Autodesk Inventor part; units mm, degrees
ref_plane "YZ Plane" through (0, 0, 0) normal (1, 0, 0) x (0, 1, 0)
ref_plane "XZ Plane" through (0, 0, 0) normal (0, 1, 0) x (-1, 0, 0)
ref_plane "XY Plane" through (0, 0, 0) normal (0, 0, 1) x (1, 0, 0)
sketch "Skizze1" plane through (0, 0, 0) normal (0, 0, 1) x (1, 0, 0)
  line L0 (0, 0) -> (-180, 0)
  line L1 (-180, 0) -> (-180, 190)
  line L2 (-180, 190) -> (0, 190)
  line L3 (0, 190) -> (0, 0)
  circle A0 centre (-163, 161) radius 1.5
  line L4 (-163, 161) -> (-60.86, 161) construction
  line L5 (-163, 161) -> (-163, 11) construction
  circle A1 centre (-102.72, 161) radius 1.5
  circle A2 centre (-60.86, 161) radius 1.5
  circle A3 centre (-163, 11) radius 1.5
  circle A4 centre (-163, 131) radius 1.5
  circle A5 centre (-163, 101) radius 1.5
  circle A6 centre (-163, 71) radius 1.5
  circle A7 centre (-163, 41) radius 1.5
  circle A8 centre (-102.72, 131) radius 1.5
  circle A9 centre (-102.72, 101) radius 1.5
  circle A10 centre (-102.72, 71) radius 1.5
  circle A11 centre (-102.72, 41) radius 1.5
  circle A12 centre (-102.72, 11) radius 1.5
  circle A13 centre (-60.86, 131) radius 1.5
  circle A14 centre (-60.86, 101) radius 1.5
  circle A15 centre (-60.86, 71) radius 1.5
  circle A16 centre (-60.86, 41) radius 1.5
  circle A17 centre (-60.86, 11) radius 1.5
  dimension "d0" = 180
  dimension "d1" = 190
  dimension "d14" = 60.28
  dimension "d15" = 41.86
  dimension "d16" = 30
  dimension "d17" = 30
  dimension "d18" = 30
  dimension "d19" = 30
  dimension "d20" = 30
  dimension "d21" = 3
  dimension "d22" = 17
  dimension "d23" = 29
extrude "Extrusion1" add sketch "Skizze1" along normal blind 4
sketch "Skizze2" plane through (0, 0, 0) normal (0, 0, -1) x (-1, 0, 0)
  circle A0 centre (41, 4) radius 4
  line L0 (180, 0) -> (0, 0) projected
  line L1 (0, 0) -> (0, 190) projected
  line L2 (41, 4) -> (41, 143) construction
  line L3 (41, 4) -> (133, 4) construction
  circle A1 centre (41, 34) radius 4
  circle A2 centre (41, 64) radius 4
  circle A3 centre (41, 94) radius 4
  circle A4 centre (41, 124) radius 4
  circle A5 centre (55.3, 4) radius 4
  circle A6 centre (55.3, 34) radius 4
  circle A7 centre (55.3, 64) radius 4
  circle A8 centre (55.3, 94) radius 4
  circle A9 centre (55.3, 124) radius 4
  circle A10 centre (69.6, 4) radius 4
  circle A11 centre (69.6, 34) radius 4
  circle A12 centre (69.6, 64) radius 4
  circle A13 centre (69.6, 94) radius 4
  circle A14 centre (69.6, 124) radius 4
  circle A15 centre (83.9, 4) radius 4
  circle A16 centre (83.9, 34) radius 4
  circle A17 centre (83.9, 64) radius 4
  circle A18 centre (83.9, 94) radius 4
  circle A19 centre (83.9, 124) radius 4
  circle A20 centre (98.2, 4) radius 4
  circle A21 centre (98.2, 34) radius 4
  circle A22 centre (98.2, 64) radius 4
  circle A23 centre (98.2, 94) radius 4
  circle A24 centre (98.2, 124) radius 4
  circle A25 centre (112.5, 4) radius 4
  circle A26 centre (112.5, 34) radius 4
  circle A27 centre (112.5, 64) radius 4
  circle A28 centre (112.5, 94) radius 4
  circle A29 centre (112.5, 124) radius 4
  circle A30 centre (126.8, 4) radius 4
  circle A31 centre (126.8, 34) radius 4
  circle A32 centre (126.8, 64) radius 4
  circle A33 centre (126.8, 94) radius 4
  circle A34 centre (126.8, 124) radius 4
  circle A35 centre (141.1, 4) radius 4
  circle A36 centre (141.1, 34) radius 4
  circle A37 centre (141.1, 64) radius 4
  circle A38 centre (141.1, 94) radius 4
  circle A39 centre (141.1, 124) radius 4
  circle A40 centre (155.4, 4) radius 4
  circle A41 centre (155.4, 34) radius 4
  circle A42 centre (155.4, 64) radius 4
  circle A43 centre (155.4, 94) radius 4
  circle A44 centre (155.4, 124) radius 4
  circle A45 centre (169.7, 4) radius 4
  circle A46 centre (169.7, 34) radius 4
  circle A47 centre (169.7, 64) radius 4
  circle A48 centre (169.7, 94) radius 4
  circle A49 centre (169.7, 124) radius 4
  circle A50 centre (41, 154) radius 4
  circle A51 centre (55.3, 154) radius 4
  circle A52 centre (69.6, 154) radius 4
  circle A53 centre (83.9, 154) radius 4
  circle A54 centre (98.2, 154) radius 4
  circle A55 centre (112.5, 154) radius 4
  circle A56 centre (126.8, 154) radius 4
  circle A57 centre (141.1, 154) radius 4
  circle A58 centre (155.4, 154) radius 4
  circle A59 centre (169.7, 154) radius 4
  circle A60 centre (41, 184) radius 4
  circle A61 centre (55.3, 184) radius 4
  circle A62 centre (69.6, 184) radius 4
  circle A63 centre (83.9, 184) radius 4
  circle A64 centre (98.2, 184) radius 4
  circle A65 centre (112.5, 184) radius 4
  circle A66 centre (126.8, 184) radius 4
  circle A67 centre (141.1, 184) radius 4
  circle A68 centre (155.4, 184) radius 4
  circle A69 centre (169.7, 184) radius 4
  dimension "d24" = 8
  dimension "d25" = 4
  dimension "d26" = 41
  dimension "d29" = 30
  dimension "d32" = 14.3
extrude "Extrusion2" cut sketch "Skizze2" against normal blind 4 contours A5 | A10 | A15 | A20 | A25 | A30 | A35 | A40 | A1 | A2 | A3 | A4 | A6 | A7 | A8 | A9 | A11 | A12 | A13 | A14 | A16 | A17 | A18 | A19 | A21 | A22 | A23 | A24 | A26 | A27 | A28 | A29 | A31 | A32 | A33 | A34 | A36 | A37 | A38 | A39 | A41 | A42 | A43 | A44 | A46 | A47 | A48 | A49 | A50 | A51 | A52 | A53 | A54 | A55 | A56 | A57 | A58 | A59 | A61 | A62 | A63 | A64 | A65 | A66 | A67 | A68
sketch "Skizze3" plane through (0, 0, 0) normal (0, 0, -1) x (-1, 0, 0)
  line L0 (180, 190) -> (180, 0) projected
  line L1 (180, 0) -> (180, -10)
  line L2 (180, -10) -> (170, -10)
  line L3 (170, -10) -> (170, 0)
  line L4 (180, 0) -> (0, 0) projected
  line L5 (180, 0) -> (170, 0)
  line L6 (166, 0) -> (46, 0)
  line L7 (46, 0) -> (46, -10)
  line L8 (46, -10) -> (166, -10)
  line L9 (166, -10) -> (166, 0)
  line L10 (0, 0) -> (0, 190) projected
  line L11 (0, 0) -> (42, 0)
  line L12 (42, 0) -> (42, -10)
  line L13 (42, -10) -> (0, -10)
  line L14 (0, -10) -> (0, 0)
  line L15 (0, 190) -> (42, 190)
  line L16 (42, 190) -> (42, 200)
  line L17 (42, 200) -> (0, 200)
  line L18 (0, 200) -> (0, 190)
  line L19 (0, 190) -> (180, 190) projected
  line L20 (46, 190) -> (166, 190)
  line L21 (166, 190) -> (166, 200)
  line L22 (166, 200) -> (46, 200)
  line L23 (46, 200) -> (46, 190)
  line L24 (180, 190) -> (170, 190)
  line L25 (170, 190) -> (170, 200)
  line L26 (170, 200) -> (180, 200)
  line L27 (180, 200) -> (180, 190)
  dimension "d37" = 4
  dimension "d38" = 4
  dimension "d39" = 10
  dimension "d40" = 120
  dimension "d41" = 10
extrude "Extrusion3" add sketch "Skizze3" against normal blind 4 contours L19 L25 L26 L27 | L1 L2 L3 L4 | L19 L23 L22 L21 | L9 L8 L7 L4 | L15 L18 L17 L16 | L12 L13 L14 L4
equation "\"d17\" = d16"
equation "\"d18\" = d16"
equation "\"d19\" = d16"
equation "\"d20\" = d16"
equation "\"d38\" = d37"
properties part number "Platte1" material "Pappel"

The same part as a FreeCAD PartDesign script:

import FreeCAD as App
import Part
import Sketcher
from FreeCAD import Vector


def add_polygon(sketch, points):
    """Adds a closed chain of lines whose ends are joined by coincident constraints."""
    first, n = sketch.GeometryCount, len(points)
    for a, b in zip(points, points[1:] + points[:1]):
        sketch.addGeometry(Part.LineSegment(App.Vector(*a, 0), App.Vector(*b, 0)), False)
    for i in range(n):
        sketch.addConstraint(Sketcher.Constraint("Coincident", first + i, 2, first + (i + 1) % n, 1))

doc = App.newDocument("Part")
body = doc.addObject("PartDesign::Body", "Body")

sketch1 = doc.addObject("Sketcher::SketchObject", "Sketch")
body.addObject(sketch1)
sketch1.AttachmentSupport = (doc.XY_Plane, [""])
sketch1.MapMode = "FlatFace"
add_polygon(sketch1, [(-180, 0), (0, 0), (0, 190), (-180, 190)])
sketch1.addGeometry(Part.Circle(Vector(-163, 11, 0), Vector(0, 0, 1), 1.5), False)
sketch1.addGeometry(Part.Circle(Vector(-163, 41, 0), Vector(0, 0, 1), 1.5), False)
sketch1.addGeometry(Part.Circle(Vector(-102.7, 11, 0), Vector(0, 0, 1), 1.5), False)
sketch1.addGeometry(Part.Circle(Vector(-102.7, 41, 0), Vector(0, 0, 1), 1.5), False)
sketch1.addGeometry(Part.Circle(Vector(-163, 71, 0), Vector(0, 0, 1), 1.5), False)
sketch1.addGeometry(Part.Circle(Vector(-102.7, 71, 0), Vector(0, 0, 1), 1.5), False)
sketch1.addGeometry(Part.Circle(Vector(-60.9, 11, 0), Vector(0, 0, 1), 1.5), False)
sketch1.addGeometry(Part.Circle(Vector(-60.9, 41, 0), Vector(0, 0, 1), 1.5), False)
sketch1.addGeometry(Part.Circle(Vector(-60.9, 71, 0), Vector(0, 0, 1), 1.5), False)
sketch1.addGeometry(Part.Circle(Vector(-163, 101, 0), Vector(0, 0, 1), 1.5), False)
sketch1.addGeometry(Part.Circle(Vector(-163, 131, 0), Vector(0, 0, 1), 1.5), False)
sketch1.addGeometry(Part.Circle(Vector(-102.7, 101, 0), Vector(0, 0, 1), 1.5), False)
sketch1.addGeometry(Part.Circle(Vector(-102.7, 131, 0), Vector(0, 0, 1), 1.5), False)
sketch1.addGeometry(Part.Circle(Vector(-163, 161, 0), Vector(0, 0, 1), 1.5), False)
sketch1.addGeometry(Part.Circle(Vector(-102.7, 161, 0), Vector(0, 0, 1), 1.5), False)
sketch1.addGeometry(Part.Circle(Vector(-60.9, 101, 0), Vector(0, 0, 1), 1.5), False)
sketch1.addGeometry(Part.Circle(Vector(-60.9, 131, 0), Vector(0, 0, 1), 1.5), False)
sketch1.addGeometry(Part.Circle(Vector(-60.9, 161, 0), Vector(0, 0, 1), 1.5), False)
sketch1.addConstraint([
    Sketcher.Constraint("Horizontal", 0),
    Sketcher.Constraint("Vertical", 1),
    Sketcher.Constraint("Horizontal", 2),
    Sketcher.Constraint("Vertical", 3),
    Sketcher.Constraint("Coincident", 0, 2, -1, 1),
    Sketcher.Constraint("Equal", 4, 5),
    Sketcher.Constraint("Equal", 5, 6),
    Sketcher.Constraint("Equal", 6, 7),
    Sketcher.Constraint("Equal", 7, 8),
    Sketcher.Constraint("Equal", 8, 9),
    Sketcher.Constraint("Equal", 9, 10),
    Sketcher.Constraint("Equal", 10, 11),
    Sketcher.Constraint("Equal", 11, 12),
    Sketcher.Constraint("Equal", 12, 13),
    Sketcher.Constraint("Equal", 13, 14),
    Sketcher.Constraint("Equal", 14, 15),
    Sketcher.Constraint("Equal", 15, 16),
    Sketcher.Constraint("Equal", 16, 17),
    Sketcher.Constraint("Equal", 17, 18),
    Sketcher.Constraint("Equal", 18, 19),
    Sketcher.Constraint("Equal", 19, 20),
    Sketcher.Constraint("Equal", 20, 21),
    Sketcher.Constraint("Horizontal", 4, 3, 6, 3),
    Sketcher.Constraint("Horizontal", 5, 3, 7, 3),
    Sketcher.Constraint("Horizontal", 8, 3, 9, 3),
    Sketcher.Constraint("Horizontal", 6, 3, 10, 3),
    Sketcher.Constraint("Horizontal", 7, 3, 11, 3),
    Sketcher.Constraint("Horizontal", 9, 3, 12, 3),
    Sketcher.Constraint("Horizontal", 13, 3, 15, 3),
    Sketcher.Constraint("Horizontal", 14, 3, 16, 3),
    Sketcher.Constraint("Horizontal", 17, 3, 18, 3),
    Sketcher.Constraint("Horizontal", 15, 3, 19, 3),
    Sketcher.Constraint("Horizontal", 16, 3, 20, 3),
    Sketcher.Constraint("Horizontal", 18, 3, 21, 3),
    Sketcher.Constraint("Vertical", 4, 3, 5, 3),
    Sketcher.Constraint("Vertical", 6, 3, 7, 3),
    Sketcher.Constraint("Vertical", 5, 3, 8, 3),
    Sketcher.Constraint("Vertical", 7, 3, 9, 3),
    Sketcher.Constraint("Vertical", 10, 3, 11, 3),
    Sketcher.Constraint("Vertical", 11, 3, 12, 3),
    Sketcher.Constraint("Vertical", 8, 3, 13, 3),
    Sketcher.Constraint("Vertical", 13, 3, 14, 3),
    Sketcher.Constraint("Vertical", 9, 3, 15, 3),
    Sketcher.Constraint("Vertical", 15, 3, 16, 3),
    Sketcher.Constraint("Vertical", 14, 3, 17, 3),
    Sketcher.Constraint("Vertical", 16, 3, 18, 3),
    Sketcher.Constraint("Vertical", 12, 3, 19, 3),
    Sketcher.Constraint("Vertical", 19, 3, 20, 3),
    Sketcher.Constraint("Vertical", 20, 3, 21, 3),
    Sketcher.Constraint("Diameter", 4, 3.0),
    Sketcher.Constraint("DistanceX", 0, 1, 0, 2, 180.0),
    Sketcher.Constraint("DistanceY", 1, 1, 1, 2, 190.0),
    Sketcher.Constraint("DistanceY", 4, 3, 5, 3, 30.0),
    Sketcher.Constraint("DistanceY", 5, 3, 8, 3, 30.0),
    Sketcher.Constraint("DistanceY", 8, 3, 13, 3, 30.0),
    Sketcher.Constraint("DistanceY", 13, 3, 14, 3, 30.0),
    Sketcher.Constraint("DistanceY", 14, 3, 17, 3, 30.0),
    Sketcher.Constraint("DistanceY", 21, 3, 1, 2, 29.0),
    Sketcher.Constraint("DistanceX", 2, 2, 17, 3, 17.0),
    Sketcher.Constraint("DistanceX", 4, 3, 6, 3, 60.28),
    Sketcher.Constraint("DistanceX", 6, 3, 10, 3, 41.86),
])
pad1 = doc.addObject("PartDesign::Pad", "Pad")
body.addObject(pad1)
pad1.Profile = sketch1
pad1.Length = 4

sketch2 = doc.addObject("Sketcher::SketchObject", "Sketch001")
body.addObject(sketch2)
sketch2.AttachmentSupport = (doc.XY_Plane, [""])
sketch2.MapMode = "FlatFace"
sketch2.addGeometry([
    Part.Circle(Vector(-55.3, 4, 0), Vector(0, 0, 1), 4),
    Part.Circle(Vector(-69.6, 4, 0), Vector(0, 0, 1), 4),
    Part.Circle(Vector(-83.9, 4, 0), Vector(0, 0, 1), 4),
    Part.Circle(Vector(-98.2, 4, 0), Vector(0, 0, 1), 4),
    Part.Circle(Vector(-112.5, 4, 0), Vector(0, 0, 1), 4),
    Part.Circle(Vector(-126.8, 4, 0), Vector(0, 0, 1), 4),
    Part.Circle(Vector(-141.1, 4, 0), Vector(0, 0, 1), 4),
    Part.Circle(Vector(-155.4, 4, 0), Vector(0, 0, 1), 4),
    Part.Circle(Vector(-41, 34, 0), Vector(0, 0, 1), 4),
    Part.Circle(Vector(-41, 64, 0), Vector(0, 0, 1), 4),
    Part.Circle(Vector(-41, 94, 0), Vector(0, 0, 1), 4),
    Part.Circle(Vector(-41, 124, 0), Vector(0, 0, 1), 4),
    Part.Circle(Vector(-55.3, 34, 0), Vector(0, 0, 1), 4),
    Part.Circle(Vector(-55.3, 64, 0), Vector(0, 0, 1), 4),
    Part.Circle(Vector(-55.3, 94, 0), Vector(0, 0, 1), 4),
    Part.Circle(Vector(-55.3, 124, 0), Vector(0, 0, 1), 4),
    Part.Circle(Vector(-69.6, 34, 0), Vector(0, 0, 1), 4),
    Part.Circle(Vector(-69.6, 64, 0), Vector(0, 0, 1), 4),
    Part.Circle(Vector(-69.6, 94, 0), Vector(0, 0, 1), 4),
    Part.Circle(Vector(-69.6, 124, 0), Vector(0, 0, 1), 4),
    Part.Circle(Vector(-83.9, 34, 0), Vector(0, 0, 1), 4),
    Part.Circle(Vector(-83.9, 64, 0), Vector(0, 0, 1), 4),
    Part.Circle(Vector(-83.9, 94, 0), Vector(0, 0, 1), 4),
    Part.Circle(Vector(-83.9, 124, 0), Vector(0, 0, 1), 4),
    Part.Circle(Vector(-98.2, 34, 0), Vector(0, 0, 1), 4),
    Part.Circle(Vector(-98.2, 64, 0), Vector(0, 0, 1), 4),
    Part.Circle(Vector(-98.2, 94, 0), Vector(0, 0, 1), 4),
    Part.Circle(Vector(-98.2, 124, 0), Vector(0, 0, 1), 4),
    Part.Circle(Vector(-112.5, 34, 0), Vector(0, 0, 1), 4),
    Part.Circle(Vector(-112.5, 64, 0), Vector(0, 0, 1), 4),
    Part.Circle(Vector(-112.5, 94, 0), Vector(0, 0, 1), 4),
    Part.Circle(Vector(-112.5, 124, 0), Vector(0, 0, 1), 4),
    Part.Circle(Vector(-126.8, 34, 0), Vector(0, 0, 1), 4),
    Part.Circle(Vector(-126.8, 64, 0), Vector(0, 0, 1), 4),
    Part.Circle(Vector(-126.8, 94, 0), Vector(0, 0, 1), 4),
    Part.Circle(Vector(-126.8, 124, 0), Vector(0, 0, 1), 4),
    Part.Circle(Vector(-141.1, 34, 0), Vector(0, 0, 1), 4),
    Part.Circle(Vector(-141.1, 64, 0), Vector(0, 0, 1), 4),
    Part.Circle(Vector(-141.1, 94, 0), Vector(0, 0, 1), 4),
    Part.Circle(Vector(-141.1, 124, 0), Vector(0, 0, 1), 4),
    Part.Circle(Vector(-155.4, 34, 0), Vector(0, 0, 1), 4),
    Part.Circle(Vector(-155.4, 64, 0), Vector(0, 0, 1), 4),
    Part.Circle(Vector(-155.4, 94, 0), Vector(0, 0, 1), 4),
    Part.Circle(Vector(-155.4, 124, 0), Vector(0, 0, 1), 4),
    Part.Circle(Vector(-169.7, 34, 0), Vector(0, 0, 1), 4),
    Part.Circle(Vector(-169.7, 64, 0), Vector(0, 0, 1), 4),
    Part.Circle(Vector(-169.7, 94, 0), Vector(0, 0, 1), 4),
    Part.Circle(Vector(-169.7, 124, 0), Vector(0, 0, 1), 4),
    Part.Circle(Vector(-41, 154, 0), Vector(0, 0, 1), 4),
    Part.Circle(Vector(-55.3, 154, 0), Vector(0, 0, 1), 4),
    Part.Circle(Vector(-69.6, 154, 0), Vector(0, 0, 1), 4),
    Part.Circle(Vector(-83.9, 154, 0), Vector(0, 0, 1), 4),
    Part.Circle(Vector(-98.2, 154, 0), Vector(0, 0, 1), 4),
    Part.Circle(Vector(-112.5, 154, 0), Vector(0, 0, 1), 4),
    Part.Circle(Vector(-126.8, 154, 0), Vector(0, 0, 1), 4),
    Part.Circle(Vector(-141.1, 154, 0), Vector(0, 0, 1), 4),
    Part.Circle(Vector(-155.4, 154, 0), Vector(0, 0, 1), 4),
    Part.Circle(Vector(-169.7, 154, 0), Vector(0, 0, 1), 4),
    Part.Circle(Vector(-55.3, 184, 0), Vector(0, 0, 1), 4),
    Part.Circle(Vector(-69.6, 184, 0), Vector(0, 0, 1), 4),
    Part.Circle(Vector(-83.9, 184, 0), Vector(0, 0, 1), 4),
    Part.Circle(Vector(-98.2, 184, 0), Vector(0, 0, 1), 4),
    Part.Circle(Vector(-112.5, 184, 0), Vector(0, 0, 1), 4),
    Part.Circle(Vector(-126.8, 184, 0), Vector(0, 0, 1), 4),
    Part.Circle(Vector(-141.1, 184, 0), Vector(0, 0, 1), 4),
    Part.Circle(Vector(-155.4, 184, 0), Vector(0, 0, 1), 4),
], False)
sketch2.addConstraint([
    Sketcher.Constraint("Equal", 0, 1),
    Sketcher.Constraint("Equal", 1, 2),
    Sketcher.Constraint("Equal", 2, 3),
    Sketcher.Constraint("Equal", 3, 4),
    Sketcher.Constraint("Equal", 4, 5),
    Sketcher.Constraint("Equal", 5, 6),
    Sketcher.Constraint("Equal", 6, 7),
    Sketcher.Constraint("Equal", 7, 8),
    Sketcher.Constraint("Equal", 8, 9),
    Sketcher.Constraint("Equal", 9, 10),
    Sketcher.Constraint("Equal", 10, 11),
    Sketcher.Constraint("Equal", 11, 12),
    Sketcher.Constraint("Equal", 12, 13),
    Sketcher.Constraint("Equal", 13, 14),
    Sketcher.Constraint("Equal", 14, 15),
    Sketcher.Constraint("Equal", 15, 16),
    Sketcher.Constraint("Equal", 16, 17),
    Sketcher.Constraint("Equal", 17, 18),
    Sketcher.Constraint("Equal", 18, 19),
    Sketcher.Constraint("Equal", 19, 20),
    Sketcher.Constraint("Equal", 20, 21),
    Sketcher.Constraint("Equal", 21, 22),
    Sketcher.Constraint("Equal", 22, 23),
    Sketcher.Constraint("Equal", 23, 24),
    Sketcher.Constraint("Equal", 24, 25),
    Sketcher.Constraint("Equal", 25, 26),
    Sketcher.Constraint("Equal", 26, 27),
    Sketcher.Constraint("Equal", 27, 28),
    Sketcher.Constraint("Equal", 28, 29),
    Sketcher.Constraint("Equal", 29, 30),
    Sketcher.Constraint("Equal", 30, 31),
    Sketcher.Constraint("Equal", 31, 32),
    Sketcher.Constraint("Equal", 32, 33),
    Sketcher.Constraint("Equal", 33, 34),
    Sketcher.Constraint("Equal", 34, 35),
    Sketcher.Constraint("Equal", 35, 36),
    Sketcher.Constraint("Equal", 36, 37),
    Sketcher.Constraint("Equal", 37, 38),
    Sketcher.Constraint("Equal", 38, 39),
    Sketcher.Constraint("Equal", 39, 40),
    Sketcher.Constraint("Equal", 40, 41),
    Sketcher.Constraint("Equal", 41, 42),
    Sketcher.Constraint("Equal", 42, 43),
    Sketcher.Constraint("Equal", 43, 44),
    Sketcher.Constraint("Equal", 44, 45),
    Sketcher.Constraint("Equal", 45, 46),
    Sketcher.Constraint("Equal", 46, 47),
    Sketcher.Constraint("Equal", 47, 48),
    Sketcher.Constraint("Equal", 48, 49),
    Sketcher.Constraint("Equal", 49, 50),
    Sketcher.Constraint("Equal", 50, 51),
    Sketcher.Constraint("Equal", 51, 52),
    Sketcher.Constraint("Equal", 52, 53),
    Sketcher.Constraint("Equal", 53, 54),
    Sketcher.Constraint("Equal", 54, 55),
    Sketcher.Constraint("Equal", 55, 56),
    Sketcher.Constraint("Equal", 56, 57),
    Sketcher.Constraint("Equal", 57, 58),
    Sketcher.Constraint("Equal", 58, 59),
    Sketcher.Constraint("Equal", 59, 60),
    Sketcher.Constraint("Equal", 60, 61),
    Sketcher.Constraint("Equal", 61, 62),
    Sketcher.Constraint("Equal", 62, 63),
    Sketcher.Constraint("Equal", 63, 64),
    Sketcher.Constraint("Equal", 64, 65),
    Sketcher.Constraint("Horizontal", 0, 3, 1, 3),
    Sketcher.Constraint("Horizontal", 1, 3, 2, 3),
    Sketcher.Constraint("Horizontal", 2, 3, 3, 3),
    Sketcher.Constraint("Horizontal", 3, 3, 4, 3),
    Sketcher.Constraint("Horizontal", 4, 3, 5, 3),
    Sketcher.Constraint("Horizontal", 5, 3, 6, 3),
    Sketcher.Constraint("Horizontal", 6, 3, 7, 3),
    Sketcher.Constraint("Horizontal", 8, 3, 12, 3),
    Sketcher.Constraint("Horizontal", 9, 3, 13, 3),
    Sketcher.Constraint("Horizontal", 10, 3, 14, 3),
    Sketcher.Constraint("Horizontal", 11, 3, 15, 3),
    Sketcher.Constraint("Horizontal", 12, 3, 16, 3),
    Sketcher.Constraint("Horizontal", 13, 3, 17, 3),
    Sketcher.Constraint("Horizontal", 14, 3, 18, 3),
    Sketcher.Constraint("Horizontal", 15, 3, 19, 3),
    Sketcher.Constraint("Horizontal", 16, 3, 20, 3),
    Sketcher.Constraint("Horizontal", 17, 3, 21, 3),
    Sketcher.Constraint("Horizontal", 18, 3, 22, 3),
    Sketcher.Constraint("Horizontal", 19, 3, 23, 3),
    Sketcher.Constraint("Horizontal", 20, 3, 24, 3),
    Sketcher.Constraint("Horizontal", 21, 3, 25, 3),
    Sketcher.Constraint("Horizontal", 22, 3, 26, 3),
    Sketcher.Constraint("Horizontal", 23, 3, 27, 3),
    Sketcher.Constraint("Horizontal", 24, 3, 28, 3),
    Sketcher.Constraint("Horizontal", 25, 3, 29, 3),
    Sketcher.Constraint("Horizontal", 26, 3, 30, 3),
    Sketcher.Constraint("Horizontal", 27, 3, 31, 3),
    Sketcher.Constraint("Horizontal", 28, 3, 32, 3),
    Sketcher.Constraint("Horizontal", 29, 3, 33, 3),
    Sketcher.Constraint("Horizontal", 30, 3, 34, 3),
    Sketcher.Constraint("Horizontal", 31, 3, 35, 3),
    Sketcher.Constraint("Horizontal", 32, 3, 36, 3),
    Sketcher.Constraint("Horizontal", 33, 3, 37, 3),
    Sketcher.Constraint("Horizontal", 34, 3, 38, 3),
    Sketcher.Constraint("Horizontal", 35, 3, 39, 3),
    Sketcher.Constraint("Horizontal", 36, 3, 40, 3),
    Sketcher.Constraint("Horizontal", 37, 3, 41, 3),
    Sketcher.Constraint("Horizontal", 38, 3, 42, 3),
    Sketcher.Constraint("Horizontal", 39, 3, 43, 3),
    Sketcher.Constraint("Horizontal", 40, 3, 44, 3),
    Sketcher.Constraint("Horizontal", 41, 3, 45, 3),
    Sketcher.Constraint("Horizontal", 42, 3, 46, 3),
    Sketcher.Constraint("Horizontal", 43, 3, 47, 3),
    Sketcher.Constraint("Horizontal", 48, 3, 49, 3),
    Sketcher.Constraint("Horizontal", 49, 3, 50, 3),
    Sketcher.Constraint("Horizontal", 50, 3, 51, 3),
    Sketcher.Constraint("Horizontal", 51, 3, 52, 3),
    Sketcher.Constraint("Horizontal", 52, 3, 53, 3),
    Sketcher.Constraint("Horizontal", 53, 3, 54, 3),
    Sketcher.Constraint("Horizontal", 54, 3, 55, 3),
    Sketcher.Constraint("Horizontal", 55, 3, 56, 3),
    Sketcher.Constraint("Horizontal", 56, 3, 57, 3),
    Sketcher.Constraint("Horizontal", 58, 3, 59, 3),
    Sketcher.Constraint("Horizontal", 59, 3, 60, 3),
    Sketcher.Constraint("Horizontal", 60, 3, 61, 3),
    Sketcher.Constraint("Horizontal", 61, 3, 62, 3),
    Sketcher.Constraint("Horizontal", 62, 3, 63, 3),
    Sketcher.Constraint("Horizontal", 63, 3, 64, 3),
    Sketcher.Constraint("Horizontal", 64, 3, 65, 3),
    Sketcher.Constraint("Vertical", 8, 3, 9, 3),
    Sketcher.Constraint("Vertical", 9, 3, 10, 3),
    Sketcher.Constraint("Vertical", 10, 3, 11, 3),
    Sketcher.Constraint("Vertical", 0, 3, 12, 3),
    Sketcher.Constraint("Vertical", 12, 3, 13, 3),
    Sketcher.Constraint("Vertical", 13, 3, 14, 3),
    Sketcher.Constraint("Vertical", 14, 3, 15, 3),
    Sketcher.Constraint("Vertical", 1, 3, 16, 3),
    Sketcher.Constraint("Vertical", 16, 3, 17, 3),
    Sketcher.Constraint("Vertical", 17, 3, 18, 3),
    Sketcher.Constraint("Vertical", 18, 3, 19, 3),
    Sketcher.Constraint("Vertical", 2, 3, 20, 3),
    Sketcher.Constraint("Vertical", 20, 3, 21, 3),
    Sketcher.Constraint("Vertical", 21, 3, 22, 3),
    Sketcher.Constraint("Vertical", 22, 3, 23, 3),
    Sketcher.Constraint("Vertical", 3, 3, 24, 3),
    Sketcher.Constraint("Vertical", 24, 3, 25, 3),
    Sketcher.Constraint("Vertical", 25, 3, 26, 3),
    Sketcher.Constraint("Vertical", 26, 3, 27, 3),
    Sketcher.Constraint("Vertical", 4, 3, 28, 3),
    Sketcher.Constraint("Vertical", 28, 3, 29, 3),
    Sketcher.Constraint("Vertical", 29, 3, 30, 3),
    Sketcher.Constraint("Vertical", 30, 3, 31, 3),
    Sketcher.Constraint("Vertical", 5, 3, 32, 3),
    Sketcher.Constraint("Vertical", 32, 3, 33, 3),
    Sketcher.Constraint("Vertical", 33, 3, 34, 3),
    Sketcher.Constraint("Vertical", 34, 3, 35, 3),
    Sketcher.Constraint("Vertical", 6, 3, 36, 3),
    Sketcher.Constraint("Vertical", 36, 3, 37, 3),
    Sketcher.Constraint("Vertical", 37, 3, 38, 3),
    Sketcher.Constraint("Vertical", 38, 3, 39, 3),
    Sketcher.Constraint("Vertical", 7, 3, 40, 3),
    Sketcher.Constraint("Vertical", 40, 3, 41, 3),
    Sketcher.Constraint("Vertical", 41, 3, 42, 3),
    Sketcher.Constraint("Vertical", 42, 3, 43, 3),
    Sketcher.Constraint("Vertical", 44, 3, 45, 3),
    Sketcher.Constraint("Vertical", 45, 3, 46, 3),
    Sketcher.Constraint("Vertical", 46, 3, 47, 3),
    Sketcher.Constraint("Vertical", 11, 3, 48, 3),
    Sketcher.Constraint("Vertical", 15, 3, 49, 3),
    Sketcher.Constraint("Vertical", 19, 3, 50, 3),
    Sketcher.Constraint("Vertical", 23, 3, 51, 3),
    Sketcher.Constraint("Vertical", 27, 3, 52, 3),
    Sketcher.Constraint("Vertical", 31, 3, 53, 3),
    Sketcher.Constraint("Vertical", 35, 3, 54, 3),
    Sketcher.Constraint("Vertical", 39, 3, 55, 3),
    Sketcher.Constraint("Vertical", 43, 3, 56, 3),
    Sketcher.Constraint("Vertical", 47, 3, 57, 3),
    Sketcher.Constraint("Vertical", 49, 3, 58, 3),
    Sketcher.Constraint("Vertical", 50, 3, 59, 3),
    Sketcher.Constraint("Vertical", 51, 3, 60, 3),
    Sketcher.Constraint("Vertical", 52, 3, 61, 3),
    Sketcher.Constraint("Vertical", 53, 3, 62, 3),
    Sketcher.Constraint("Vertical", 54, 3, 63, 3),
    Sketcher.Constraint("Vertical", 55, 3, 64, 3),
    Sketcher.Constraint("Vertical", 56, 3, 65, 3),
    Sketcher.Constraint("Diameter", 0, 8.0),
    Sketcher.Constraint("DistanceY", -1, 1, 0, 3, 4.0),
    Sketcher.Constraint("DistanceX", 8, 3, -1, 1, 41.0),
    Sketcher.Constraint("DistanceY", -1, 1, 8, 3, 34.0),
    Sketcher.Constraint("DistanceY", -1, 1, 9, 3, 64.0),
    Sketcher.Constraint("DistanceY", -1, 1, 10, 3, 94.0),
    Sketcher.Constraint("DistanceY", -1, 1, 11, 3, 124.0),
    Sketcher.Constraint("DistanceY", -1, 1, 48, 3, 154.0),
    Sketcher.Constraint("DistanceY", -1, 1, 58, 3, 184.0),
    Sketcher.Constraint("DistanceX", 0, 3, -1, 1, 55.3),
    Sketcher.Constraint("DistanceX", 1, 3, -1, 1, 69.6),
    Sketcher.Constraint("DistanceX", 2, 3, -1, 1, 83.9),
    Sketcher.Constraint("DistanceX", 3, 3, -1, 1, 98.2),
    Sketcher.Constraint("DistanceX", 4, 3, -1, 1, 112.5),
    Sketcher.Constraint("DistanceX", 5, 3, -1, 1, 126.8),
    Sketcher.Constraint("DistanceX", 6, 3, -1, 1, 141.1),
    Sketcher.Constraint("DistanceX", 7, 3, -1, 1, 155.4),
    Sketcher.Constraint("DistanceX", 44, 3, -1, 1, 169.7),
])
pocket1 = doc.addObject("PartDesign::Pocket", "Pocket")
body.addObject(pocket1)
pocket1.Profile = sketch2
pocket1.Length = 4
pocket1.Reversed = True

sketch3 = doc.addObject("Sketcher::SketchObject", "Sketch002")
body.addObject(sketch3)
sketch3.AttachmentSupport = (doc.XY_Plane, [""])
sketch3.MapMode = "FlatFace"
add_polygon(sketch3, [(-170, 190), (-180, 190), (-180, 200), (-170, 200)])
add_polygon(sketch3, [(-180, -10), (-180, 0), (-170, 0), (-170, -10)])
add_polygon(sketch3, [(-46, 190), (-166, 190), (-166, 200), (-46, 200)])
add_polygon(sketch3, [(-166, -10), (-166, 0), (-46, 0), (-46, -10)])
add_polygon(sketch3, [(0, 190), (-42, 190), (-42, 200), (0, 200)])
add_polygon(sketch3, [(-42, -10), (-42, 0), (0, 0), (0, -10)])
sketch3.addConstraint([
    Sketcher.Constraint("Horizontal", 0),
    Sketcher.Constraint("Vertical", 1),
    Sketcher.Constraint("Horizontal", 2),
    Sketcher.Constraint("Vertical", 3),
    Sketcher.Constraint("Vertical", 4),
    Sketcher.Constraint("Horizontal", 5),
    Sketcher.Constraint("Vertical", 6),
    Sketcher.Constraint("Horizontal", 7),
    Sketcher.Constraint("Horizontal", 8),
    Sketcher.Constraint("Vertical", 9),
    Sketcher.Constraint("Horizontal", 10),
    Sketcher.Constraint("Vertical", 11),
    Sketcher.Constraint("Vertical", 12),
    Sketcher.Constraint("Horizontal", 13),
    Sketcher.Constraint("Vertical", 14),
    Sketcher.Constraint("Horizontal", 15),
    Sketcher.Constraint("Horizontal", 16),
    Sketcher.Constraint("Vertical", 17),
    Sketcher.Constraint("Horizontal", 18),
    Sketcher.Constraint("Vertical", 19),
    Sketcher.Constraint("Vertical", 20),
    Sketcher.Constraint("Horizontal", 21),
    Sketcher.Constraint("Vertical", 22),
    Sketcher.Constraint("Horizontal", 23),
    Sketcher.Constraint("Coincident", 21, 2, -1, 1),
    Sketcher.Constraint("PointOnObject", 4, 2, -1),
    Sketcher.Constraint("PointOnObject", 12, 2, -1),
    Sketcher.Constraint("PointOnObject", 18, 2, -2),
    Sketcher.Constraint("Horizontal", 3, 2, 8, 2),
    Sketcher.Constraint("Horizontal", 2, 2, 9, 2),
    Sketcher.Constraint("Horizontal", 7, 2, 14, 2),
    Sketcher.Constraint("Horizontal", 11, 2, 16, 2),
    Sketcher.Constraint("Horizontal", 10, 2, 17, 2),
    Sketcher.Constraint("Horizontal", 15, 2, 22, 2),
    Sketcher.Constraint("Vertical", 1, 2, 4, 2),
    Sketcher.Constraint("Vertical", 3, 2, 5, 2),
    Sketcher.Constraint("Vertical", 9, 2, 12, 2),
    Sketcher.Constraint("Vertical", 11, 2, 13, 2),
    Sketcher.Constraint("Vertical", 17, 2, 20, 2),
    Sketcher.Constraint("Equal", 7, 1),
    Sketcher.Constraint("Equal", 3, 4),
    Sketcher.Constraint("DistanceX", 0, 2, 0, 1, 10.0),
    Sketcher.Constraint("DistanceX", 8, 2, 8, 1, 120.0),
    Sketcher.Constraint("DistanceX", 3, 2, 8, 2, 4.0),
    Sketcher.Constraint("DistanceX", 11, 2, 16, 2, 4.0),
    Sketcher.Constraint("DistanceX", 16, 2, 16, 1, 42.0),
    Sketcher.Constraint("DistanceY", -1, 1, 0, 2, 190.0),
])
pad2 = doc.addObject("PartDesign::Pad", "Pad001")
body.addObject(pad2)
pad2.Profile = sketch3
pad2.Length = 4

doc.recompute()
